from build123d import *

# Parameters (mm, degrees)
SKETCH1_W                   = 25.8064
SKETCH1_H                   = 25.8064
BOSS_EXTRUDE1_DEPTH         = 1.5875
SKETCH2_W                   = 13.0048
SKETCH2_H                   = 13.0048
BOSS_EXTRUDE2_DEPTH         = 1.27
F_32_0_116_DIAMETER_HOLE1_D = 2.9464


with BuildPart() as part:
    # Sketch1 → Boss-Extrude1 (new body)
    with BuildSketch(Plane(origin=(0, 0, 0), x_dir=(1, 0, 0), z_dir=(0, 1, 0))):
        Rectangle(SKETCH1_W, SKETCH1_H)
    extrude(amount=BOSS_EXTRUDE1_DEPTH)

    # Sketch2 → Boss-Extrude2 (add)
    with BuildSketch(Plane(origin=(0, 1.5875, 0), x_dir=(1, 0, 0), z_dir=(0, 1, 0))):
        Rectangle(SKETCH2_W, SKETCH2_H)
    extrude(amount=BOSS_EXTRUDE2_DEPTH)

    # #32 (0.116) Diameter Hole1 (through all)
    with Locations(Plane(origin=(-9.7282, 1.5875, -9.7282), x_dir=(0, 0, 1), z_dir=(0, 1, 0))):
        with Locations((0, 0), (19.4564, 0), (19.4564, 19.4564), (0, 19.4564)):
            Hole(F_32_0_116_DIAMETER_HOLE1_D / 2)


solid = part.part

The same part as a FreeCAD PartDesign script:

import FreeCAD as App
import Part
import Sketcher
Q = App.Units.Quantity


def add_polygon(sketch, points):
    """Adds a closed chain of lines whose ends are joined by coincident constraints."""
    first, n = sketch.GeometryCount, len(points)
    for a, b in zip(points, points[1:] + points[:1]):
        sketch.addGeometry(Part.LineSegment(App.Vector(*a, 0), App.Vector(*b, 0)), False)
    for i in range(n):
        sketch.addConstraint(Sketcher.Constraint("Coincident", first + i, 2, first + (i + 1) % n, 1))

doc = App.newDocument("Part")
body = doc.addObject("PartDesign::Body", "Body")

sketch1 = body.newObject("Sketcher::SketchObject", "Sketch")
sketch1.AttachmentSupport = (doc.getObject("XZ_Plane"), [""])
sketch1.MapMode = "FlatFace"
add_polygon(sketch1, [(-13, -13), (-13, 13), (13, 13), (13, -13)])
sketch1.addConstraint([
    Sketcher.Constraint("Vertical", 0),
    Sketcher.Constraint("Horizontal", 1),
    Sketcher.Constraint("Vertical", 2),
    Sketcher.Constraint("Horizontal", 3),
    Sketcher.Constraint("Symmetric", 0, 2, 2, 2, -1, 1),
    Sketcher.Constraint("Equal", 3, 0),
    Sketcher.Constraint("DistanceX", 1, 1, 1, 2, Q("1.016 in")),
])
pad1 = body.newObject("PartDesign::Pad", "Pad")
pad1.Profile = sketch1
pad1.Length = Q("0.0625 in")
pad1.Reversed = True

sketch2 = body.newObject("Sketcher::SketchObject", "Sketch001")
sketch2.AttachmentSupport = (doc.getObject("XZ_Plane"), [""])
sketch2.MapMode = "FlatFace"
sketch2.AttachmentOffset = App.Placement(App.Vector(0, 0, -0.0625 * 25.4), App.Rotation())
add_polygon(sketch2, [(-7, -7), (-7, 7), (7, 7), (7, -7)])
sketch2.addConstraint([
    Sketcher.Constraint("Vertical", 0),
    Sketcher.Constraint("Horizontal", 1),
    Sketcher.Constraint("Vertical", 2),
    Sketcher.Constraint("Horizontal", 3),
    Sketcher.Constraint("Symmetric", 0, 2, 2, 2, -1, 1),
    Sketcher.Constraint("Equal", 3, 0),
    Sketcher.Constraint("DistanceX", 1, 1, 1, 2, Q("0.512 in")),
])
pad2 = body.newObject("PartDesign::Pad", "Pad001")
pad2.Profile = sketch2
pad2.Length = Q("0.05 in")
pad2.Reversed = True

sketch3 = body.newObject("Sketcher::SketchObject", "Sketch002")
sketch3.AttachmentSupport = (doc.getObject("XZ_Plane"), [""])
sketch3.MapMode = "FlatFace"
sketch3.AttachmentOffset = App.Placement(App.Vector(0, 0, -0.0625 * 25.4), App.Rotation())
sketch3.addGeometry([
    Part.Circle(App.Vector(-9.7, -9.7, 0), App.Vector(0, 0, 1), 1.5),
    Part.Circle(App.Vector(-9.7, 9.7, 0), App.Vector(0, 0, 1), 1.5),
    Part.Circle(App.Vector(9.7, 9.7, 0), App.Vector(0, 0, 1), 1.5),
    Part.Circle(App.Vector(9.7, -9.7, 0), App.Vector(0, 0, 1), 1.5),
], False)
sketch3.addConstraint([
    Sketcher.Constraint("Equal", 0, 1),
    Sketcher.Constraint("Equal", 1, 2),
    Sketcher.Constraint("Equal", 2, 3),
    Sketcher.Constraint("Symmetric", 0, 3, 2, 3, -1, 1),
    Sketcher.Constraint("Symmetric", 1, 3, 3, 3, -1, 1),
    Sketcher.Constraint("Symmetric", 1, 3, 2, 3, -2),
    Sketcher.Constraint("Diameter", 0, Q("0.116 in")),
    Sketcher.Constraint("DistanceX", 0, 3, -1, 1, Q("0.383 in")),
    Sketcher.Constraint("DistanceY", 0, 3, -1, 1, Q("0.383 in")),
])
doc.recompute()
hole = body.newObject("PartDesign::Hole", "Hole")
hole.Profile = sketch3
hole.ThreadType = "None"
hole.Diameter = Q("0.116 in")
hole.DepthType = "ThroughAll"
hole.Reversed = True

doc.recompute()
